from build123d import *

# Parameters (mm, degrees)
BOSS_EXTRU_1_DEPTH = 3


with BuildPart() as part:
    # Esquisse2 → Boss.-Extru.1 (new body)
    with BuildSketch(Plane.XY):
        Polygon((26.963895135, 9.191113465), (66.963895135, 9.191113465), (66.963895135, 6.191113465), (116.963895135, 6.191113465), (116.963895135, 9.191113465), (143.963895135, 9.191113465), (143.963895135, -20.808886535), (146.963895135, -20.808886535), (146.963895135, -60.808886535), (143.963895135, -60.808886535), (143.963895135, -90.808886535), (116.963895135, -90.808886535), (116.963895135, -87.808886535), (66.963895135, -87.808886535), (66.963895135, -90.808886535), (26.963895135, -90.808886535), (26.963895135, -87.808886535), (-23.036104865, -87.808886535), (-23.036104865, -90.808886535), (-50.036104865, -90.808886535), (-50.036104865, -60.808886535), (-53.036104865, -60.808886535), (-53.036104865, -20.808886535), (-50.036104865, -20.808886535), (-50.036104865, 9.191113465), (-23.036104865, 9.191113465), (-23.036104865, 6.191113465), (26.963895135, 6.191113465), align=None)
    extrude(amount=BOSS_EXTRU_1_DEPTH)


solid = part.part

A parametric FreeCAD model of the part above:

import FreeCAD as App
import Part
import Sketcher

V = App.Vector


def add_polygon(sketch, points):
    """Adds a closed chain of lines whose ends are joined by coincident constraints."""
    first, n = sketch.GeometryCount, len(points)
    for a, b in zip(points, points[1:] + points[:1]):
        sketch.addGeometry(Part.LineSegment(App.Vector(*a, 0), App.Vector(*b, 0)), False)
    for i in range(n):
        sketch.addConstraint(Sketcher.Constraint("Coincident", first + i, 2, first + (i + 1) % n, 1))

doc = App.newDocument("Part")
params = doc.addObject("Spreadsheet::Sheet", "Params")
for row, (alias, value) in enumerate([
    ("sketch1_width", "40 mm"),
    ("sketch1_width2", "50 mm"),
    ("sketch1_width3", "27 mm"),
    ("sketch1_width4", "3 mm"),
    ("sketch1_height", "30 mm"),
    ("pad1_length", "3 mm"),
], start=1):
    params.set(f"A{row}", alias)
    params.set(f"B{row}", "=" + value)
    params.setAlias(f"B{row}", alias)

body = doc.addObject("PartDesign::Body", "Body")

# Sketch on XY plane
sketch1 = body.newObject("Sketcher::SketchObject", "Sketch")
sketch1.AttachmentSupport = (doc.getObject("XY_Plane"), [""])
sketch1.MapMode = "FlatFace"
add_polygon(sketch1, [(67, 9.2), (27, 9.2), (27, 6.2), (-23, 6.2), (-23, 9.2), (-50, 9.2), (-50, -20.8), (-53, -20.8), (-53, -60.8), (-50, -60.8), (-50, -90.8), (-23, -90.8), (-23, -87.8), (27, -87.8), (27, -90.8), (67, -90.8), (67, -87.8), (117, -87.8), (117, -90.8), (144, -90.8), (144, -60.8), (147, -60.8), (147, -20.8), (144, -20.8), (144, 9.2), (117, 9.2), (117, 6.2), (67, 6.2)])  # lines 0-27
sketch1.addConstraint(Sketcher.Constraint("Horizontal", 0))
sketch1.addConstraint(Sketcher.Constraint("Vertical", 1))
sketch1.addConstraint(Sketcher.Constraint("Horizontal", 2))
sketch1.addConstraint(Sketcher.Constraint("Vertical", 3))
sketch1.addConstraint(Sketcher.Constraint("Horizontal", 4))
sketch1.addConstraint(Sketcher.Constraint("Vertical", 5))
sketch1.addConstraint(Sketcher.Constraint("Horizontal", 6))
sketch1.addConstraint(Sketcher.Constraint("Vertical", 7))
sketch1.addConstraint(Sketcher.Constraint("Horizontal", 8))
sketch1.addConstraint(Sketcher.Constraint("Vertical", 9))
sketch1.addConstraint(Sketcher.Constraint("Horizontal", 10))
sketch1.addConstraint(Sketcher.Constraint("Vertical", 11))
sketch1.addConstraint(Sketcher.Constraint("Horizontal", 12))
sketch1.addConstraint(Sketcher.Constraint("Vertical", 13))
sketch1.addConstraint(Sketcher.Constraint("Horizontal", 14))
sketch1.addConstraint(Sketcher.Constraint("Vertical", 15))
sketch1.addConstraint(Sketcher.Constraint("Horizontal", 16))
sketch1.addConstraint(Sketcher.Constraint("Vertical", 17))
sketch1.addConstraint(Sketcher.Constraint("Horizontal", 18))
sketch1.addConstraint(Sketcher.Constraint("Vertical", 19))
sketch1.addConstraint(Sketcher.Constraint("Horizontal", 20))
sketch1.addConstraint(Sketcher.Constraint("Vertical", 21))
sketch1.addConstraint(Sketcher.Constraint("Horizontal", 22))
sketch1.addConstraint(Sketcher.Constraint("Vertical", 23))
sketch1.addConstraint(Sketcher.Constraint("Horizontal", 24))
sketch1.addConstraint(Sketcher.Constraint("Vertical", 25))
sketch1.addConstraint(Sketcher.Constraint("Horizontal", 26))
sketch1.addConstraint(Sketcher.Constraint("Vertical", 27))
sketch1.addConstraint(Sketcher.Constraint("Horizontal", 0, 2, 3, 2))
sketch1.addConstraint(Sketcher.Constraint("Horizontal", 10, 2, 13, 2))
sketch1.addConstraint(Sketcher.Constraint("Horizontal", 12, 2, 15, 2))
sketch1.addConstraint(Sketcher.Constraint("Horizontal", 14, 2, 17, 2))
sketch1.addConstraint(Sketcher.Constraint("Horizontal", 8, 2, 19, 2))
sketch1.addConstraint(Sketcher.Constraint("Horizontal", 6, 2, 21, 2))
sketch1.addConstraint(Sketcher.Constraint("Horizontal", 4, 2, 23, 2))
sketch1.addConstraint(Sketcher.Constraint("Horizontal", 2, 2, 25, 2))
sketch1.addConstraint(Sketcher.Constraint("Vertical", 5, 2, 8, 2))
sketch1.addConstraint(Sketcher.Constraint("Vertical", 3, 2, 10, 2))
sketch1.addConstraint(Sketcher.Constraint("Vertical", 1, 2, 12, 2))
sketch1.addConstraint(Sketcher.Constraint("Vertical", 19, 2, 22, 2))
sketch1.addConstraint(Sketcher.Constraint("Vertical", 17, 2, 24, 2))
sketch1.addConstraint(Sketcher.Constraint("Vertical", 15, 2, 26, 2))
sketch1.addConstraint(Sketcher.Constraint("Equal", 12, 16))
sketch1.addConstraint(Sketcher.Constraint("Equal", 10, 18))
sketch1.addConstraint(Sketcher.Constraint("Equal", 8, 20))
sketch1.addConstraint(Sketcher.Constraint("Equal", 22, 1))
sketch1.addConstraint(Sketcher.Constraint("Equal", 14, 7))
sketch1.addConstraint(Sketcher.Constraint("Equal", 5, 9))
sketch1.addConstraint(Sketcher.Constraint("Equal", 3, 11))
sketch1.addConstraint(Sketcher.Constraint("DistanceX", 0, 2, 0, 1, 40.0))
sketch1.addConstraint(Sketcher.Constraint("DistanceX", 2, 2, 2, 1, 50.0))
sketch1.addConstraint(Sketcher.Constraint("DistanceX", 4, 2, 4, 1, 27.0))
sketch1.addConstraint(Sketcher.Constraint("DistanceX", 6, 2, 6, 1, 3.0))
sketch1.addConstraint(Sketcher.Constraint("DistanceY", 5, 2, 5, 1, 30.0))
sketch1.addConstraint(Sketcher.Constraint("DistanceX", -1, 1, 0, 2, 26.963895))
sketch1.addConstraint(Sketcher.Constraint("DistanceY", -1, 1, 0, 2, 9.191113))
sketch1.setExpression("Constraints[77]", "Params.sketch1_width")
sketch1.setExpression("Constraints[78]", "Params.sketch1_width2")
sketch1.setExpression("Constraints[79]", "Params.sketch1_width3")
sketch1.setExpression("Constraints[80]", "Params.sketch1_width4")
sketch1.setExpression("Constraints[81]", "Params.sketch1_height")
pad1 = body.newObject("PartDesign::Pad", "Pad")
pad1.Profile = sketch1
pad1.setExpression("Length", "Params.pad1_length")

doc.recompute()
